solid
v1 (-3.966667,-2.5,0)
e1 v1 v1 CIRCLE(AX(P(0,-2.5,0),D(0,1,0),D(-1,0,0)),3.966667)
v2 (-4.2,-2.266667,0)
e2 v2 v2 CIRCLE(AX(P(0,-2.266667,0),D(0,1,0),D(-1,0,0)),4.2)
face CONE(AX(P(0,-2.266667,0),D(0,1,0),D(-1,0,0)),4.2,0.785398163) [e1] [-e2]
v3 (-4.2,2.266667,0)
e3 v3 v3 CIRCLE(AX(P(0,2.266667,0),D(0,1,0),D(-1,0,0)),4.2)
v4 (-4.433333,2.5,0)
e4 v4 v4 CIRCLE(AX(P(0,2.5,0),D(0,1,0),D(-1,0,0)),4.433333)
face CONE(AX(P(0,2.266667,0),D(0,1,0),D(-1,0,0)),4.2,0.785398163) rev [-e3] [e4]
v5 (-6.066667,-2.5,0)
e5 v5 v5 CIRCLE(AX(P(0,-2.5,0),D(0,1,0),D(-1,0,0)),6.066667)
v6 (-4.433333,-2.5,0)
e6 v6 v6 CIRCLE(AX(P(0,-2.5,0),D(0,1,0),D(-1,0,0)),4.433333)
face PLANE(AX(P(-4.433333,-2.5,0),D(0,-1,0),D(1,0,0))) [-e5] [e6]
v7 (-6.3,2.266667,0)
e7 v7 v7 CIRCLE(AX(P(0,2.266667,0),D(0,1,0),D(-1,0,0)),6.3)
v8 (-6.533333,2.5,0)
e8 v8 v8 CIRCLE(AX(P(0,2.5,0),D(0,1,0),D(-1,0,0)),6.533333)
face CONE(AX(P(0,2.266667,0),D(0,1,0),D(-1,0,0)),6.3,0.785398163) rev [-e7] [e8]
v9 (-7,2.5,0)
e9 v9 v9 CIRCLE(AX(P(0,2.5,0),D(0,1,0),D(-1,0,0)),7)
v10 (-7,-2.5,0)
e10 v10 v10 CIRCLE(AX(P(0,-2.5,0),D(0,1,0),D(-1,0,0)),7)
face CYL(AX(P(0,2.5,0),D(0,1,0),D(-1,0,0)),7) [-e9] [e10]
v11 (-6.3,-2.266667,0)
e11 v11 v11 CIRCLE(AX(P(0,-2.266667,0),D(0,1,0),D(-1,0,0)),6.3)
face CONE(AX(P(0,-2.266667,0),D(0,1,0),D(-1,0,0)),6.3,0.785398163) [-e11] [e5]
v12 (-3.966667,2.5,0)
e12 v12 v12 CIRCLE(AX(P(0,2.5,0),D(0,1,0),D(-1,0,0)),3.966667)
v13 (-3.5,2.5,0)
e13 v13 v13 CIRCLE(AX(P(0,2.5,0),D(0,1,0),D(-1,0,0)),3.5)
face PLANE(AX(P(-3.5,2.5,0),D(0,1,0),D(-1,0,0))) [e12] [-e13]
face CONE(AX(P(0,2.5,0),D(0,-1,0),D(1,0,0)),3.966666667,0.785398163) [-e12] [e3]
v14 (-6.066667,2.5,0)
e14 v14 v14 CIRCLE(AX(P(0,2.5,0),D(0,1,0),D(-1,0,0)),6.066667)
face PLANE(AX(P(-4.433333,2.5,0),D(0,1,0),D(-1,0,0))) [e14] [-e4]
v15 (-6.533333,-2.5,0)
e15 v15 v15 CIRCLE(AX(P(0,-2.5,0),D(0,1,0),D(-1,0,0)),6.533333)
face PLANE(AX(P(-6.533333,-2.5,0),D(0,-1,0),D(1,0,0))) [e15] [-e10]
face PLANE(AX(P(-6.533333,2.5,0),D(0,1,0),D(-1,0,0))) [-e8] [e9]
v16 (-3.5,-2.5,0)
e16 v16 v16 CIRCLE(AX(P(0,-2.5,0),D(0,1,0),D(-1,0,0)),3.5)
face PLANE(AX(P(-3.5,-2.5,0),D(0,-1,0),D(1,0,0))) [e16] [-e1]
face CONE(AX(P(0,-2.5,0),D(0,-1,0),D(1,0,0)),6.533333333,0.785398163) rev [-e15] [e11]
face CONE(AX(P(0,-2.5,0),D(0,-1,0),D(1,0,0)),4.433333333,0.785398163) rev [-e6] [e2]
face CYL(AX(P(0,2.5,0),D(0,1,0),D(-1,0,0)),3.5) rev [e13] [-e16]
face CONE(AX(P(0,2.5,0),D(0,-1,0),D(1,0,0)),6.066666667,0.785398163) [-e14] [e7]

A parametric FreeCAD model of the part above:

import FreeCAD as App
import Part
import Sketcher

doc = App.newDocument("Part")
params = doc.addObject("Spreadsheet::Sheet", "Params")
for row, (alias, value) in enumerate([
    ("sketch1_height", "5 mm"),
    ("revolution_angle", "360 deg"),
], start=1):
    params.set(f"A{row}", alias)
    params.set(f"B{row}", "=" + value)
    params.setAlias(f"B{row}", alias)

body = doc.addObject("PartDesign::Body", "Body")

# Sketch on XY plane
sketch1 = doc.addObject("Sketcher::SketchObject", "Sketch")
body.addObject(sketch1)
sketch1.AttachmentSupport = (doc.XY_Plane, [""])
sketch1.MapMode = "FlatFace"
sketch1.addGeometry([
    Part.LineSegment(App.Vector(-3.5, 2.5, 0), App.Vector(-3.966667, 2.5, 0)),  # 0
    Part.LineSegment(App.Vector(-3.966667, 2.5, 0), App.Vector(-4.2, 2.266667, 0)),  # 1
    Part.LineSegment(App.Vector(-4.2, 2.266667, 0), App.Vector(-4.433333, 2.5, 0)),  # 2
    Part.LineSegment(App.Vector(-4.433333, 2.5, 0), App.Vector(-6.066667, 2.5, 0)),  # 3
    Part.LineSegment(App.Vector(-6.066667, 2.5, 0), App.Vector(-6.3, 2.266667, 0)),  # 4
    Part.LineSegment(App.Vector(-6.3, 2.266667, 0), App.Vector(-6.533333, 2.5, 0)),  # 5
    Part.LineSegment(App.Vector(-6.533333, 2.5, 0), App.Vector(-7, 2.5, 0)),  # 6
    Part.LineSegment(App.Vector(-7, 2.5, 0), App.Vector(-7, -2.5, 0)),  # 7
    Part.LineSegment(App.Vector(-7, -2.5, 0), App.Vector(-6.533333, -2.5, 0)),  # 8
    Part.LineSegment(App.Vector(-6.533333, -2.5, 0), App.Vector(-6.3, -2.266667, 0)),  # 9
    Part.LineSegment(App.Vector(-6.3, -2.266667, 0), App.Vector(-6.066667, -2.5, 0)),  # 10
    Part.LineSegment(App.Vector(-6.066667, -2.5, 0), App.Vector(-4.433333, -2.5, 0)),  # 11
    Part.LineSegment(App.Vector(-4.433333, -2.5, 0), App.Vector(-4.2, -2.266667, 0)),  # 12
    Part.LineSegment(App.Vector(-4.2, -2.266667, 0), App.Vector(-3.966667, -2.5, 0)),  # 13
    Part.LineSegment(App.Vector(-3.966667, -2.5, 0), App.Vector(-3.5, -2.5, 0)),  # 14
    Part.LineSegment(App.Vector(-3.5, -2.5, 0), App.Vector(-3.5, 2.5, 0)),  # 15
], False)
sketch1.addConstraint([
    Sketcher.Constraint("Coincident", 0, 2, 1, 1),
    Sketcher.Constraint("Coincident", 1, 2, 2, 1),
    Sketcher.Constraint("Coincident", 2, 2, 3, 1),
    Sketcher.Constraint("Coincident", 3, 2, 4, 1),
    Sketcher.Constraint("Coincident", 4, 2, 5, 1),
    Sketcher.Constraint("Coincident", 5, 2, 6, 1),
    Sketcher.Constraint("Coincident", 6, 2, 7, 1),
    Sketcher.Constraint("Coincident", 7, 2, 8, 1),
    Sketcher.Constraint("Coincident", 8, 2, 9, 1),
    Sketcher.Constraint("Coincident", 9, 2, 10, 1),
    Sketcher.Constraint("Coincident", 10, 2, 11, 1),
    Sketcher.Constraint("Coincident", 11, 2, 12, 1),
    Sketcher.Constraint("Coincident", 12, 2, 13, 1),
    Sketcher.Constraint("Coincident", 13, 2, 14, 1),
    Sketcher.Constraint("Coincident", 14, 2, 15, 1),
    Sketcher.Constraint("Coincident", 15, 2, 0, 1),
    Sketcher.Constraint("Horizontal", 0),
    Sketcher.Constraint("Horizontal", 3),
    Sketcher.Constraint("Horizontal", 6),
    Sketcher.Constraint("Vertical", 7),
    Sketcher.Constraint("Horizontal", 8),
    Sketcher.Constraint("Horizontal", 11),
    Sketcher.Constraint("Horizontal", 14),
    Sketcher.Constraint("Vertical", 15),
    Sketcher.Constraint("Symmetric", 5, 2, 8, 2, -1),
    Sketcher.Constraint("Symmetric", 4, 2, 9, 2, -1),
    Sketcher.Constraint("Symmetric", 3, 2, 10, 2, -1),
    Sketcher.Constraint("Symmetric", 1, 2, 12, 2, -1),
    Sketcher.Constraint("Symmetric", 0, 2, 13, 2, -1),
    Sketcher.Constraint("Perpendicular", 1, 2),
    Sketcher.Constraint("Perpendicular", 2, 4),
    Sketcher.Constraint("Perpendicular", 4, 5),
    Sketcher.Constraint("Perpendicular", 5, 9),
    Sketcher.Constraint("Perpendicular", 10, 12),
    Sketcher.Constraint("Horizontal", 0, 2, 2, 2),
    Sketcher.Constraint("Horizontal", 1, 2, 4, 2),
    Sketcher.Constraint("Horizontal", 3, 2, 5, 2),
    Sketcher.Constraint("Equal", 0, 6),
    Sketcher.Constraint("DistanceY", 7, 2, 7, 1, 5.0),
    Sketcher.Constraint("DistanceX", 6, 2, -1, 1, 7.0),
    Sketcher.Constraint("DistanceX", 1, 2, -1, 1, 4.2),
    Sketcher.Constraint("DistanceX", 4, 2, -1, 1, 6.3),
    Sketcher.Constraint("DistanceX", 0, 2, 0, 1, 0.466667),
])
sketch1.setExpression("Constraints[38]", "Params.sketch1_height")
revolution = doc.addObject("PartDesign::Revolution", "Revolution")
body.addObject(revolution)
revolution.Profile = sketch1
revolution.ReferenceAxis = (sketch1, ["V_Axis"])
revolution.setExpression("Angle", "Params.revolution_angle")

doc.recompute()
